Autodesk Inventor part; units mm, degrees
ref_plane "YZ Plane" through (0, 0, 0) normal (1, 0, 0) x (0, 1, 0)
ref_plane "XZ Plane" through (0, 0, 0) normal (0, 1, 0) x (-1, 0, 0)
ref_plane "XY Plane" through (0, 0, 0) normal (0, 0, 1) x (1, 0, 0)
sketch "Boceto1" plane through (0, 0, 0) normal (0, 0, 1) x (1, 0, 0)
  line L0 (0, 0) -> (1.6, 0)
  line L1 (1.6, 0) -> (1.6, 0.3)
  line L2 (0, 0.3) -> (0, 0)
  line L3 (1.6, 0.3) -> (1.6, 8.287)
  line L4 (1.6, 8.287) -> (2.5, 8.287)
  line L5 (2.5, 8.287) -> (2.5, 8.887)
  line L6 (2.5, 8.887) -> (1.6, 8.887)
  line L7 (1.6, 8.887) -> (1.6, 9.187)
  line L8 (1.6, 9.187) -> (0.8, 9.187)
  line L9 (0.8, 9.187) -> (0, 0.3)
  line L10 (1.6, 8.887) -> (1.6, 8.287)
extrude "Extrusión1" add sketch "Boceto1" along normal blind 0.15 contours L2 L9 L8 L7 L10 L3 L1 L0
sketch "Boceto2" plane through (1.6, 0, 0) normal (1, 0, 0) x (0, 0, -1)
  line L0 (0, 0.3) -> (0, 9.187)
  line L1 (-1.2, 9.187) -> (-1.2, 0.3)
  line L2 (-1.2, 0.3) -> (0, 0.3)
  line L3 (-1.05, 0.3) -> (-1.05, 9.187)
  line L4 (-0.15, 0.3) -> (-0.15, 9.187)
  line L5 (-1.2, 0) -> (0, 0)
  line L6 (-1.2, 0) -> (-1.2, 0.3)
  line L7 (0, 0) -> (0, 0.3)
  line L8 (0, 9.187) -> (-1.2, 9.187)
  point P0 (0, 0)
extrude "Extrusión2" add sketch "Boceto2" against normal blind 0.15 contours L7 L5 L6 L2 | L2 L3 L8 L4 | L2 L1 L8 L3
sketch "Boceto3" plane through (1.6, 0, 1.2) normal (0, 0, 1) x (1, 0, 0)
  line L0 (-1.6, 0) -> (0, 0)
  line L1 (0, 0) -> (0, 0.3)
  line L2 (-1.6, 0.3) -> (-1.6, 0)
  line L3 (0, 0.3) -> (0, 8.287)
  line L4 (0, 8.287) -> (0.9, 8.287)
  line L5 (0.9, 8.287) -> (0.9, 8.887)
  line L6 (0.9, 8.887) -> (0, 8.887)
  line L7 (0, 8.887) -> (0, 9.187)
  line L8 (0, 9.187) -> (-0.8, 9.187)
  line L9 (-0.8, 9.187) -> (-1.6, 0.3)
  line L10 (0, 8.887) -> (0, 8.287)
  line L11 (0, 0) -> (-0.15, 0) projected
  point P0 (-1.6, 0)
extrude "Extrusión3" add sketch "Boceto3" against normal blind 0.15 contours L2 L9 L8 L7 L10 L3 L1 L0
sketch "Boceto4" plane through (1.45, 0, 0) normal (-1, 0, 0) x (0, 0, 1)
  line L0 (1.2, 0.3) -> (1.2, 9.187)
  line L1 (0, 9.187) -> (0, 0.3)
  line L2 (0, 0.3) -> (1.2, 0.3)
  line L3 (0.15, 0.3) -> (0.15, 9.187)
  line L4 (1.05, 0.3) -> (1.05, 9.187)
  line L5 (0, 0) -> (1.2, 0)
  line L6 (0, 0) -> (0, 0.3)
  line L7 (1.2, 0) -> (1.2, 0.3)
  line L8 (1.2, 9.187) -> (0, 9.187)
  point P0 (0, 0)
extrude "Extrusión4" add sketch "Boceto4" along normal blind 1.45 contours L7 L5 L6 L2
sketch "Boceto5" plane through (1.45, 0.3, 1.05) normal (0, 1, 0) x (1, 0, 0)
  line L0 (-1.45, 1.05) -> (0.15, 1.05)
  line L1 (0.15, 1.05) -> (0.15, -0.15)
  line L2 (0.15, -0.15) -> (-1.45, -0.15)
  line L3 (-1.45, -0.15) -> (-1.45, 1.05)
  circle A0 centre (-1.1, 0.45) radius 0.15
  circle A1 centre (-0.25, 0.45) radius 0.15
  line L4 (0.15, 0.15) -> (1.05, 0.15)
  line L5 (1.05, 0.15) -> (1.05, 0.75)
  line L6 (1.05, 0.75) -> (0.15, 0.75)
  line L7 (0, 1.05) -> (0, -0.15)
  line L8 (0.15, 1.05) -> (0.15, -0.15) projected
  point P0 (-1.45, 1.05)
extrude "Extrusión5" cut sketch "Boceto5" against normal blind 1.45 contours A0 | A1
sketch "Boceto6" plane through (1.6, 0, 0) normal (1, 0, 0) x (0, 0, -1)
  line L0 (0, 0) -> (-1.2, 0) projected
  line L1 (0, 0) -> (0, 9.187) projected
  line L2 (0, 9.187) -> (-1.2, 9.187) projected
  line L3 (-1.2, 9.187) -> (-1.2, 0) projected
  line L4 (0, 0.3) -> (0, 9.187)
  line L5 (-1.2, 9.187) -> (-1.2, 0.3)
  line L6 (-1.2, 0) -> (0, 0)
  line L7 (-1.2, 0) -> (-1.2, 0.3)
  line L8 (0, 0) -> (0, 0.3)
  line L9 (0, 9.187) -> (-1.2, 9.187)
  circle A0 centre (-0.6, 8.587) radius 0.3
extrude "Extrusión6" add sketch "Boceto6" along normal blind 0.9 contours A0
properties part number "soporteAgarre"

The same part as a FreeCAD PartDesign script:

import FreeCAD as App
import Part
import Sketcher
from FreeCAD import Vector


def add_polygon(sketch, points):
    """Adds a closed chain of lines whose ends are joined by coincident constraints."""
    first, n = sketch.GeometryCount, len(points)
    for a, b in zip(points, points[1:] + points[:1]):
        sketch.addGeometry(Part.LineSegment(App.Vector(*a, 0), App.Vector(*b, 0)), False)
    for i in range(n):
        sketch.addConstraint(Sketcher.Constraint("Coincident", first + i, 2, first + (i + 1) % n, 1))

doc = App.newDocument("Part")
body = doc.addObject("PartDesign::Body", "Body")

# Sketch on XY plane
sketch1 = body.newObject("Sketcher::SketchObject", "Sketch")
sketch1.AttachmentSupport = (doc.getObject("XY_Plane"), [""])
sketch1.MapMode = "FlatFace"
add_polygon(sketch1, [(0, 0.3), (0, 0), (1.6, 0), (1.6, 9.187), (0.8, 9.187)])  # lines 0-4
sketch1.addConstraint([
    Sketcher.Constraint("Vertical", 0),
    Sketcher.Constraint("Horizontal", 1),
    Sketcher.Constraint("Vertical", 2),
    Sketcher.Constraint("Horizontal", 3),
    Sketcher.Constraint("Coincident", 0, 2, -1, 1),
    Sketcher.Constraint("DistanceX", 1, 1, 1, 2, 1.6),
    Sketcher.Constraint("DistanceX", 3, 2, 3, 1, 0.8),
    Sketcher.Constraint("DistanceY", 0, 2, 0, 1, 0.3),
    Sketcher.Constraint("DistanceY", 2, 1, 2, 2, 9.187),
])
pad1 = body.newObject("PartDesign::Pad", "Pad")
pad1.Profile = sketch1
pad1.Length = 0.15

# Sketch on YZ plane
sketch2 = body.newObject("Sketcher::SketchObject", "Sketch001")
sketch2.AttachmentSupport = (doc.getObject("YZ_Plane"), [""])
sketch2.MapMode = "FlatFace"
sketch2.AttachmentOffset = App.Placement(Vector(0, 0, 1.6), App.Rotation())
add_polygon(sketch2, [(0, 0), (0.3, 0), (0.3, 0.15), (9.187, 0.15), (9.187, 1.2), (0, 1.2)])  # lines 0-5
sketch2.addConstraint([
    Sketcher.Constraint("Horizontal", 0),
    Sketcher.Constraint("Vertical", 1),
    Sketcher.Constraint("Horizontal", 2),
    Sketcher.Constraint("Vertical", 3),
    Sketcher.Constraint("Horizontal", 4),
    Sketcher.Constraint("Vertical", 5),
    Sketcher.Constraint("Coincident", 5, 2, -1, 1),
    Sketcher.Constraint("DistanceX", 0, 1, 0, 2, 0.3),
    Sketcher.Constraint("DistanceY", 5, 2, 5, 1, 1.2),
    Sketcher.Constraint("DistanceY", 1, 1, 1, 2, 0.15),
    Sketcher.Constraint("DistanceX", 2, 1, 2, 2, 8.887),
])
pad2 = body.newObject("PartDesign::Pad", "Pad001")
pad2.Profile = sketch2
pad2.Length = 0.15
pad2.Reversed = True

# Sketch on XY plane
sketch3 = body.newObject("Sketcher::SketchObject", "Sketch002")
sketch3.AttachmentSupport = (doc.getObject("XY_Plane"), [""])
sketch3.MapMode = "FlatFace"
sketch3.AttachmentOffset = App.Placement(Vector(0, 0, 1.2), App.Rotation())
add_polygon(sketch3, [(0, 0.3), (0, 0), (1.6, 0), (1.6, 9.187), (0.8, 9.187)])  # lines 0-4
sketch3.addConstraint([
    Sketcher.Constraint("Vertical", 0),
    Sketcher.Constraint("Horizontal", 1),
    Sketcher.Constraint("Vertical", 2),
    Sketcher.Constraint("Horizontal", 3),
    Sketcher.Constraint("Coincident", 0, 2, -1, 1),
    Sketcher.Constraint("DistanceX", 1, 1, 1, 2, 1.6),
    Sketcher.Constraint("DistanceX", 3, 2, 3, 1, 0.8),
    Sketcher.Constraint("DistanceY", 0, 2, 0, 1, 0.3),
    Sketcher.Constraint("DistanceY", 2, 1, 2, 2, 9.187),
])
pad3 = body.newObject("PartDesign::Pad", "Pad002")
pad3.Profile = sketch3
pad3.Length = 0.15
pad3.Reversed = True

# Sketch on YZ plane
sketch4 = body.newObject("Sketcher::SketchObject", "Sketch003")
sketch4.AttachmentSupport = (doc.getObject("YZ_Plane"), [""])
sketch4.MapMode = "FlatFace"
sketch4.AttachmentOffset = App.Placement(Vector(0, 0, 1.45), App.Rotation())
add_polygon(sketch4, [(0, 1.2), (0.3, 1.2), (0.3, 0), (0, 0)])  # lines 0-3
sketch4.addConstraint([
    Sketcher.Constraint("Horizontal", 0),
    Sketcher.Constraint("Vertical", 1),
    Sketcher.Constraint("Horizontal", 2),
    Sketcher.Constraint("Vertical", 3),
    Sketcher.Constraint("Coincident", 2, 2, -1, 1),
    Sketcher.Constraint("DistanceX", 0, 1, 0, 2, 0.3),
    Sketcher.Constraint("DistanceY", 1, 2, 1, 1, 1.2),
])
pad4 = body.newObject("PartDesign::Pad", "Pad003")
pad4.Profile = sketch4
pad4.Length = 1.45
pad4.Reversed = True

# Sketch on XZ plane
sketch5 = body.newObject("Sketcher::SketchObject", "Sketch004")
sketch5.AttachmentSupport = (doc.getObject("XZ_Plane"), [""])
sketch5.MapMode = "FlatFace"
sketch5.AttachmentOffset = App.Placement(Vector(0, 0, -0.3), App.Rotation())
sketch5.addGeometry([
    Part.Circle(Vector(0.35, 0.6, 0), Vector(0, 0, 1), 0.15),
    Part.Circle(Vector(1.2, 0.6, 0), Vector(0, 0, 1), 0.15),
], False)
sketch5.addConstraint([
    Sketcher.Constraint("Equal", 0, 1),
    Sketcher.Constraint("Horizontal", 0, 3, 1, 3),
    Sketcher.Constraint("Diameter", 0, 0.3),
    Sketcher.Constraint("DistanceY", -1, 1, 0, 3, 0.6),
    Sketcher.Constraint("DistanceX", -1, 1, 1, 3, 1.2),
    Sketcher.Constraint("DistanceX", -1, 1, 0, 3, 0.35),
])
pocket1 = body.newObject("PartDesign::Pocket", "Pocket")
pocket1.Profile = sketch5
pocket1.Length = 1.45
pocket1.Reversed = True

# Sketch on YZ plane
sketch6 = body.newObject("Sketcher::SketchObject", "Sketch005")
sketch6.AttachmentSupport = (doc.getObject("YZ_Plane"), [""])
sketch6.MapMode = "FlatFace"
sketch6.AttachmentOffset = App.Placement(Vector(0, 0, 1.6), App.Rotation())
sketch6.addGeometry(Part.Circle(Vector(8.587, 0.6, 0), Vector(0, 0, 1), 0.3), False)
sketch6.addConstraint([
    Sketcher.Constraint("Diameter", 0, 0.6),
    Sketcher.Constraint("DistanceY", -1, 1, 0, 3, 0.6),
    Sketcher.Constraint("DistanceX", -1, 1, 0, 3, 8.587),
])
pad5 = body.newObject("PartDesign::Pad", "Pad004")
pad5.Profile = sketch6
pad5.Length = 0.9

doc.recompute()
